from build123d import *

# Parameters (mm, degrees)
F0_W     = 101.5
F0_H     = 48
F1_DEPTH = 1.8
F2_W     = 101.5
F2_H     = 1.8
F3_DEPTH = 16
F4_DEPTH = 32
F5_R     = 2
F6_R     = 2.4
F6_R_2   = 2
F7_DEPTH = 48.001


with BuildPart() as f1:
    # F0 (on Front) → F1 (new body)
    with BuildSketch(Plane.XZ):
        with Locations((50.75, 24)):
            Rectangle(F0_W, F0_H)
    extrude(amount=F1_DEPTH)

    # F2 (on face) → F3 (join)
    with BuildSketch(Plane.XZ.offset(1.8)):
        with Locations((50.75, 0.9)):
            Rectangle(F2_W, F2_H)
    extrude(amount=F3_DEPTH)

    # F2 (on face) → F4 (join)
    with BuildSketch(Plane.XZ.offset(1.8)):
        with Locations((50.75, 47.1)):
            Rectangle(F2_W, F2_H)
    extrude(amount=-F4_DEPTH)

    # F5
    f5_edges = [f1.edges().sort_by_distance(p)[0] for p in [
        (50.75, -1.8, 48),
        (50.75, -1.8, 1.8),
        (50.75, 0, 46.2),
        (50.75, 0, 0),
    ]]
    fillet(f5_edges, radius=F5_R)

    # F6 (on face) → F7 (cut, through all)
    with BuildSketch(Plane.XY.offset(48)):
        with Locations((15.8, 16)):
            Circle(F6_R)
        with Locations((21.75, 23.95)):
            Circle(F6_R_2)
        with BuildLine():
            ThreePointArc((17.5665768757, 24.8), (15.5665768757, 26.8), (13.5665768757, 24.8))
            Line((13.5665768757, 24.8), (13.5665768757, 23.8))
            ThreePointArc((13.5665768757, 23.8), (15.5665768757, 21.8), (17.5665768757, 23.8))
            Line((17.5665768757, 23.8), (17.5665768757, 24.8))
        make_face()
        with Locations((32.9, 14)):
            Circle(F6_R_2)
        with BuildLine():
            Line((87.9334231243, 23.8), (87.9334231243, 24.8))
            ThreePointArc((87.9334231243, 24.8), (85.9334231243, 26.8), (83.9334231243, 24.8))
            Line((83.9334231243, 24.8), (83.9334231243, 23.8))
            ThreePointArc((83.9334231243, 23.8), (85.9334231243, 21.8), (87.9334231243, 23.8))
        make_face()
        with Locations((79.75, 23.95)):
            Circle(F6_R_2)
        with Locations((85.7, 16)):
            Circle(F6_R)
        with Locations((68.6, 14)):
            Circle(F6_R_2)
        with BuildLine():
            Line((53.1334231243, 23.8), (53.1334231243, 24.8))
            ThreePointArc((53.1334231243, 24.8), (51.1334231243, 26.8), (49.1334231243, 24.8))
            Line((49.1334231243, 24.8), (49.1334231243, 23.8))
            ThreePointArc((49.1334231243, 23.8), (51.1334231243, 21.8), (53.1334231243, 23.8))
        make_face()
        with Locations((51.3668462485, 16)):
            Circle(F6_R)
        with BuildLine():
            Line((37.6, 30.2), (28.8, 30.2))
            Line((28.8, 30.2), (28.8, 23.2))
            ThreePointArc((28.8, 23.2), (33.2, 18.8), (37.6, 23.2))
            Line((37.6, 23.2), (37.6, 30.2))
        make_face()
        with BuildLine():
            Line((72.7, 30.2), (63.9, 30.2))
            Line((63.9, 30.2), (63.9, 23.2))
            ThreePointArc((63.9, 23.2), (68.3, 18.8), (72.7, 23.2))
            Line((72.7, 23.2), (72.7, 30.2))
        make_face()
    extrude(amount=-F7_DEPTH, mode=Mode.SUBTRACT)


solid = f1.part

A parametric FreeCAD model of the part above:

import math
import FreeCAD as App
import Part
import Sketcher
from FreeCAD import Vector
Q = App.Units.Quantity


def edges_at(feature, points):
    """Names of the edges that pass closest to the given points."""
    edges = feature.Shape.Edges
    near = lambda p: min(range(len(edges)), key=lambda i: edges[i].distToShape(Part.Vertex(*p))[0])
    return sorted({f"Edge{near(p) + 1}" for p in points})


def add_polygon(sketch, points):
    """Adds a closed chain of lines whose ends are joined by coincident constraints."""
    first, n = sketch.GeometryCount, len(points)
    for a, b in zip(points, points[1:] + points[:1]):
        sketch.addGeometry(Part.LineSegment(App.Vector(*a, 0), App.Vector(*b, 0)), False)
    for i in range(n):
        sketch.addConstraint(Sketcher.Constraint("Coincident", first + i, 2, first + (i + 1) % n, 1))

doc = App.newDocument("Part")
body = doc.addObject("PartDesign::Body", "Body")

# Sketch on XZ plane
sketch1 = doc.addObject("Sketcher::SketchObject", "Sketch")
body.addObject(sketch1)
sketch1.AttachmentSupport = (doc.XZ_Plane, [""])
sketch1.MapMode = "FlatFace"
add_polygon(sketch1, [(0, 48), (0, 0), (101.5, 0), (101.5, 48)])  # lines 0-3
sketch1.addConstraint([
    Sketcher.Constraint("Vertical", 0),
    Sketcher.Constraint("Horizontal", 1),
    Sketcher.Constraint("Vertical", 2),
    Sketcher.Constraint("Horizontal", 3),
    Sketcher.Constraint("Coincident", 0, 2, -1, 1),
    Sketcher.Constraint("DistanceY", 0, 2, 0, 1, Q("48 mm")),
    Sketcher.Constraint("DistanceX", 1, 1, 1, 2, Q("101.5 mm")),
])
pad1 = doc.addObject("PartDesign::Pad", "Pad")
body.addObject(pad1)
pad1.Profile = sketch1
pad1.Length = 1.8

# Sketch on XZ plane
sketch2 = doc.addObject("Sketcher::SketchObject", "Sketch001")
body.addObject(sketch2)
sketch2.AttachmentSupport = (doc.XZ_Plane, [""])
sketch2.MapMode = "FlatFace"
sketch2.AttachmentOffset = App.Placement(Vector(0, 0, 1.8), App.Rotation())
add_polygon(sketch2, [(0, 1.8), (0, 0), (101.5, 0), (101.5, 1.8)])  # lines 0-3
sketch2.addConstraint([
    Sketcher.Constraint("Vertical", 0),
    Sketcher.Constraint("Horizontal", 1),
    Sketcher.Constraint("Vertical", 2),
    Sketcher.Constraint("Horizontal", 3),
    Sketcher.Constraint("Coincident", 0, 2, -1, 1),
    Sketcher.Constraint("DistanceX", 1, 1, 1, 2, Q("101.5 mm")),
    Sketcher.Constraint("DistanceY", 0, 2, 0, 1, Q("1.8 mm")),
])
pad2 = doc.addObject("PartDesign::Pad", "Pad001")
body.addObject(pad2)
pad2.Profile = sketch2
pad2.Length = 16

# Sketch on XZ plane
sketch3 = doc.addObject("Sketcher::SketchObject", "Sketch002")
body.addObject(sketch3)
sketch3.AttachmentSupport = (doc.XZ_Plane, [""])
sketch3.MapMode = "FlatFace"
sketch3.AttachmentOffset = App.Placement(Vector(0, 0, 1.8), App.Rotation())
add_polygon(sketch3, [(0, 48), (0, 46.2), (101.5, 46.2), (101.5, 48)])  # lines 0-3
sketch3.addConstraint([
    Sketcher.Constraint("Vertical", 0),
    Sketcher.Constraint("Horizontal", 1),
    Sketcher.Constraint("Vertical", 2),
    Sketcher.Constraint("Horizontal", 3),
    Sketcher.Constraint("PointOnObject", 0, 2, -2),
    Sketcher.Constraint("DistanceX", 1, 1, 1, 2, Q("101.5 mm")),
    Sketcher.Constraint("DistanceY", 0, 2, 0, 1, Q("1.8 mm")),
    Sketcher.Constraint("DistanceY", -1, 1, 2, 2, Q("48 mm")),
])
pad3 = doc.addObject("PartDesign::Pad", "Pad002")
body.addObject(pad3)
pad3.Profile = sketch3
pad3.Length = 32
pad3.Reversed = True
doc.recompute()

fillet = doc.addObject("PartDesign::Fillet", "Fillet")
body.addObject(fillet)
fillet.Base = (pad3, edges_at(pad3, [
    (50.75, -1.8, 48),
    (50.75, -1.8, 1.8),
    (50.75, 0, 46.2),
    (50.75, 0, 0),
]))
fillet.Radius = 2

# Sketch on XY plane
sketch4 = doc.addObject("Sketcher::SketchObject", "Sketch003")
body.addObject(sketch4)
sketch4.AttachmentSupport = (doc.XY_Plane, [""])
sketch4.MapMode = "FlatFace"
sketch4.AttachmentOffset = App.Placement(Vector(0, 0, 48), App.Rotation())
sketch4.addGeometry([
    Part.Circle(Vector(15.8, 16, 0), Vector(0, 0, 1), 2.4),  # 0
    Part.Circle(Vector(21.75, 23.95, 0), Vector(0, 0, 1), 2),  # 1
    Part.ArcOfCircle(Part.Circle(Vector(15.566577, 24.8, 0), Vector(0, 0, 1), 2), math.radians(0), math.radians(180)),  # 2
    Part.LineSegment(Vector(13.566577, 24.8, 0), Vector(13.566577, 23.8, 0)),  # 3
    Part.ArcOfCircle(Part.Circle(Vector(15.566577, 23.8, 0), Vector(0, 0, 1), 2), math.radians(180), math.radians(360)),  # 4
    Part.LineSegment(Vector(17.566577, 23.8, 0), Vector(17.566577, 24.8, 0)),  # 5
    Part.Circle(Vector(32.9, 14, 0), Vector(0, 0, 1), 2),  # 6
    Part.LineSegment(Vector(87.933423, 23.8, 0), Vector(87.933423, 24.8, 0)),  # 7
    Part.ArcOfCircle(Part.Circle(Vector(85.933423, 24.8, 0), Vector(0, 0, 1), 2), math.radians(0), math.radians(180)),  # 8
    Part.LineSegment(Vector(83.933423, 24.8, 0), Vector(83.933423, 23.8, 0)),  # 9
    Part.ArcOfCircle(Part.Circle(Vector(85.933423, 23.8, 0), Vector(0, 0, 1), 2), math.radians(180), math.radians(360)),  # 10
    Part.Circle(Vector(79.75, 23.95, 0), Vector(0, 0, 1), 2),  # 11
    Part.Circle(Vector(85.7, 16, 0), Vector(0, 0, 1), 2.4),  # 12
    Part.Circle(Vector(68.6, 14, 0), Vector(0, 0, 1), 2),  # 13
    Part.LineSegment(Vector(53.133423, 23.8, 0), Vector(53.133423, 24.8, 0)),  # 14
    Part.ArcOfCircle(Part.Circle(Vector(51.133423, 24.8, 0), Vector(0, 0, 1), 2), math.radians(0), math.radians(180)),  # 15
    Part.LineSegment(Vector(49.133423, 24.8, 0), Vector(49.133423, 23.8, 0)),  # 16
    Part.ArcOfCircle(Part.Circle(Vector(51.133423, 23.8, 0), Vector(0, 0, 1), 2), math.radians(180), math.radians(360)),  # 17
    Part.Circle(Vector(51.366846, 16, 0), Vector(0, 0, 1), 2.4),  # 18
    Part.LineSegment(Vector(37.6, 30.2, 0), Vector(28.8, 30.2, 0)),  # 19
    Part.LineSegment(Vector(28.8, 30.2, 0), Vector(28.8, 23.2, 0)),  # 20
    Part.ArcOfCircle(Part.Circle(Vector(33.2, 23.2, 0), Vector(0, 0, 1), 4.4), math.radians(180), math.radians(360)),  # 21
    Part.LineSegment(Vector(37.6, 23.2, 0), Vector(37.6, 30.2, 0)),  # 22
    Part.LineSegment(Vector(72.7, 30.2, 0), Vector(63.9, 30.2, 0)),  # 23
    Part.LineSegment(Vector(63.9, 30.2, 0), Vector(63.9, 23.2, 0)),  # 24
    Part.ArcOfCircle(Part.Circle(Vector(68.3, 23.2, 0), Vector(0, 0, 1), 4.4), math.radians(180), math.radians(360)),  # 25
    Part.LineSegment(Vector(72.7, 23.2, 0), Vector(72.7, 30.2, 0)),  # 26
], False)
sketch4.addConstraint([
    Sketcher.Constraint("Tangent", 2, 2, 3, 1),
    Sketcher.Constraint("Tangent", 3, 2, 4, 1),
    Sketcher.Constraint("Tangent", 4, 2, 5, 1),
    Sketcher.Constraint("Tangent", 5, 2, 2, 1),
    Sketcher.Constraint("Tangent", 7, 2, 8, 1),
    Sketcher.Constraint("Tangent", 8, 2, 9, 1),
    Sketcher.Constraint("Tangent", 9, 2, 10, 1),
    Sketcher.Constraint("Tangent", 10, 2, 7, 1),
    Sketcher.Constraint("Tangent", 14, 2, 15, 1),
    Sketcher.Constraint("Tangent", 15, 2, 16, 1),
    Sketcher.Constraint("Tangent", 16, 2, 17, 1),
    Sketcher.Constraint("Tangent", 17, 2, 14, 1),
    Sketcher.Constraint("Coincident", 19, 2, 20, 1),
    Sketcher.Constraint("Tangent", 20, 2, 21, 1),
    Sketcher.Constraint("Tangent", 21, 2, 22, 1),
    Sketcher.Constraint("Coincident", 22, 2, 19, 1),
    Sketcher.Constraint("Coincident", 23, 2, 24, 1),
    Sketcher.Constraint("Tangent", 24, 2, 25, 1),
    Sketcher.Constraint("Tangent", 25, 2, 26, 1),
    Sketcher.Constraint("Coincident", 26, 2, 23, 1),
    Sketcher.Constraint("Vertical", 3),
    Sketcher.Constraint("Vertical", 5),
    Sketcher.Constraint("Vertical", 7),
    Sketcher.Constraint("Vertical", 9),
    Sketcher.Constraint("Vertical", 14),
    Sketcher.Constraint("Vertical", 16),
    Sketcher.Constraint("Horizontal", 19),
    Sketcher.Constraint("Vertical", 20),
    Sketcher.Constraint("Vertical", 22),
    Sketcher.Constraint("Horizontal", 23),
    Sketcher.Constraint("Vertical", 24),
    Sketcher.Constraint("Vertical", 26),
    Sketcher.Constraint("Equal", 1, 2),
    Sketcher.Constraint("Equal", 4, 6),
    Sketcher.Constraint("Equal", 6, 8),
    Sketcher.Constraint("Equal", 10, 11),
    Sketcher.Constraint("Equal", 0, 12),
    Sketcher.Constraint("Equal", 11, 13),
    Sketcher.Constraint("Equal", 13, 15),
    Sketcher.Constraint("Equal", 12, 18),
    Sketcher.Constraint("Equal", 21, 25),
    Sketcher.Constraint("Horizontal", 2, 3, 8, 3),
    Sketcher.Constraint("Horizontal", 4, 3, 10, 3),
    Sketcher.Constraint("Horizontal", 1, 3, 11, 3),
    Sketcher.Constraint("Horizontal", 0, 3, 12, 3),
    Sketcher.Constraint("Horizontal", 6, 3, 13, 3),
    Sketcher.Constraint("Horizontal", 8, 3, 15, 3),
    Sketcher.Constraint("Horizontal", 10, 3, 17, 3),
    Sketcher.Constraint("Horizontal", 12, 3, 18, 3),
    Sketcher.Constraint("Horizontal", 21, 3, 25, 3),
    Sketcher.Constraint("Horizontal", 22, 2, 23, 2),
    Sketcher.Constraint("Diameter", 1, Q("4 mm")),
    Sketcher.Constraint("Diameter", 0, Q("4.8 mm")),
    Sketcher.Constraint("Radius", 21, Q("4.4 mm")),
    Sketcher.Constraint("DistanceY", 3, 2, 3, 1, Q("1 mm")),
    Sketcher.Constraint("DistanceY", 20, 2, 20, 1, Q("7 mm")),
    Sketcher.Constraint("DistanceY", -1, 1, 0, 3, Q("16 mm")),
    Sketcher.Constraint("DistanceY", -1, 1, 6, 3, Q("14 mm")),
    Sketcher.Constraint("DistanceX", 1, 3, 11, 3, Q("58 mm")),
    Sketcher.Constraint("DistanceX", -1, 1, 0, 3, Q("15.8 mm")),
    Sketcher.Constraint("DistanceY", -1, 1, 2, 3, Q("24.8 mm")),
    Sketcher.Constraint("DistanceX", -1, 1, 6, 3, Q("32.9 mm")),
    Sketcher.Constraint("DistanceX", -1, 1, 12, 3, Q("85.7 mm")),
    Sketcher.Constraint("DistanceX", -1, 1, 13, 3, Q("68.6 mm")),
    Sketcher.Constraint("DistanceX", -1, 1, 21, 3, Q("33.2 mm")),
    Sketcher.Constraint("DistanceY", -1, 1, 21, 3, Q("23.2 mm")),
    Sketcher.Constraint("DistanceX", -1, 1, 25, 3, Q("68.3 mm")),
    Sketcher.Constraint("DistanceX", 15, 3, 8, 3, Q("34.8 mm")),
    Sketcher.Constraint("DistanceX", -1, 1, 1, 3, Q("21.75 mm")),
    Sketcher.Constraint("DistanceY", -1, 1, 1, 3, Q("23.95 mm")),
    Sketcher.Constraint("DistanceX", -1, 1, 2, 3, Q("15.566577 mm")),
    Sketcher.Constraint("DistanceX", -1, 1, 8, 3, Q("85.933423 mm")),
    Sketcher.Constraint("DistanceX", -1, 1, 18, 3, Q("51.366846 mm")),
])
pocket1 = doc.addObject("PartDesign::Pocket", "Pocket")
body.addObject(pocket1)
pocket1.Profile = sketch4
pocket1.Type = "ThroughAll"

doc.recompute()
